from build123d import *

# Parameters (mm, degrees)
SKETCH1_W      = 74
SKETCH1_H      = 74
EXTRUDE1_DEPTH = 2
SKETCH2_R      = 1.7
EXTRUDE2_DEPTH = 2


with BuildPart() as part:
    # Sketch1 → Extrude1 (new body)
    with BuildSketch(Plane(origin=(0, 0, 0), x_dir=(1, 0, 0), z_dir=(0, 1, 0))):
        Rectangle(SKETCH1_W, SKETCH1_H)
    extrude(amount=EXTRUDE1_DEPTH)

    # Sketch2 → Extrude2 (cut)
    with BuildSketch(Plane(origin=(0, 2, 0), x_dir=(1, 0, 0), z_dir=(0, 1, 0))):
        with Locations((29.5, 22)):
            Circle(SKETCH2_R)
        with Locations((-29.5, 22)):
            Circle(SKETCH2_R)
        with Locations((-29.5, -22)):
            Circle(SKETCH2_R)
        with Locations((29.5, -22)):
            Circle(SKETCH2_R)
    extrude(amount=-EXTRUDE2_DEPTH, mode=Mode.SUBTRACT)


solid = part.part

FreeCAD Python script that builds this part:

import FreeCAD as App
import Part
import Sketcher
Q = App.Units.Quantity


def add_polygon(sketch, points):
    """Adds a closed chain of lines whose ends are joined by coincident constraints."""
    first, n = sketch.GeometryCount, len(points)
    for a, b in zip(points, points[1:] + points[:1]):
        sketch.addGeometry(Part.LineSegment(App.Vector(*a, 0), App.Vector(*b, 0)), False)
    for i in range(n):
        sketch.addConstraint(Sketcher.Constraint("Coincident", first + i, 2, first + (i + 1) % n, 1))

doc = App.newDocument("Part")
params = doc.addObject("Spreadsheet::Sheet", "Params")
for row, (alias, value) in enumerate([
    ("sketch1_width", "74 mm"),
    ("pad1_length", "2 mm"),
    ("sketch2_diameter", "3.4 mm"),
    ("pocket1_length", "2 mm"),
], start=1):
    params.set(f"A{row}", alias)
    params.set(f"B{row}", "=" + value)
    params.setAlias(f"B{row}", alias)

body = doc.addObject("PartDesign::Body", "Body")

sketch1 = body.newObject("Sketcher::SketchObject", "Sketch")
sketch1.AttachmentSupport = (doc.getObject("XZ_Plane"), [""])
sketch1.MapMode = "FlatFace"
add_polygon(sketch1, [(-37, -37), (-37, 37), (37, 37), (37, -37)])
sketch1.addConstraint(Sketcher.Constraint("Vertical", 0))
sketch1.addConstraint(Sketcher.Constraint("Horizontal", 1))
sketch1.addConstraint(Sketcher.Constraint("Vertical", 2))
sketch1.addConstraint(Sketcher.Constraint("Horizontal", 3))
sketch1.addConstraint(Sketcher.Constraint("Symmetric", 0, 2, 2, 2, -1, 1))
sketch1.addConstraint(Sketcher.Constraint("Equal", 3, 0))
sketch1.addConstraint(Sketcher.Constraint("DistanceX", 1, 1, 1, 2, Q("74 mm")))
sketch1.setExpression("Constraints[10]", "Params.sketch1_width")
pad1 = body.newObject("PartDesign::Pad", "Pad")
pad1.Profile = sketch1
pad1.setExpression("Length", "Params.pad1_length")
pad1.Reversed = True

sketch2 = body.newObject("Sketcher::SketchObject", "Sketch001")
sketch2.AttachmentSupport = (doc.getObject("XZ_Plane"), [""])
sketch2.MapMode = "FlatFace"
sketch2.AttachmentOffset = App.Placement(App.Vector(0, 0, -2), App.Rotation())
sketch2.addGeometry(Part.Circle(App.Vector(29.5, -22, 0), App.Vector(0, 0, 1), 1.7), False)
sketch2.addGeometry(Part.Circle(App.Vector(-29.5, -22, 0), App.Vector(0, 0, 1), 1.7), False)
sketch2.addGeometry(Part.Circle(App.Vector(-29.5, 22, 0), App.Vector(0, 0, 1), 1.7), False)
sketch2.addGeometry(Part.Circle(App.Vector(29.5, 22, 0), App.Vector(0, 0, 1), 1.7), False)
sketch2.addConstraint(Sketcher.Constraint("Equal", 0, 1))
sketch2.addConstraint(Sketcher.Constraint("Equal", 1, 2))
sketch2.addConstraint(Sketcher.Constraint("Equal", 2, 3))
sketch2.addConstraint(Sketcher.Constraint("Symmetric", 0, 3, 2, 3, -1, 1))
sketch2.addConstraint(Sketcher.Constraint("Symmetric", 1, 3, 3, 3, -1, 1))
sketch2.addConstraint(Sketcher.Constraint("Symmetric", 0, 3, 1, 3, -2))
sketch2.addConstraint(Sketcher.Constraint("Diameter", 0, Q("3.4 mm")))
sketch2.addConstraint(Sketcher.Constraint("DistanceY", 0, 3, -1, 1, Q("22 mm")))
sketch2.addConstraint(Sketcher.Constraint("DistanceX", 1, 3, 0, 3, Q("59 mm")))
sketch2.setExpression("Constraints[6]", "Params.sketch2_diameter")
pocket1 = body.newObject("PartDesign::Pocket", "Pocket")
pocket1.Profile = sketch2
pocket1.setExpression("Length", "Params.pocket1_length")
pocket1.Reversed = True

doc.recompute()
